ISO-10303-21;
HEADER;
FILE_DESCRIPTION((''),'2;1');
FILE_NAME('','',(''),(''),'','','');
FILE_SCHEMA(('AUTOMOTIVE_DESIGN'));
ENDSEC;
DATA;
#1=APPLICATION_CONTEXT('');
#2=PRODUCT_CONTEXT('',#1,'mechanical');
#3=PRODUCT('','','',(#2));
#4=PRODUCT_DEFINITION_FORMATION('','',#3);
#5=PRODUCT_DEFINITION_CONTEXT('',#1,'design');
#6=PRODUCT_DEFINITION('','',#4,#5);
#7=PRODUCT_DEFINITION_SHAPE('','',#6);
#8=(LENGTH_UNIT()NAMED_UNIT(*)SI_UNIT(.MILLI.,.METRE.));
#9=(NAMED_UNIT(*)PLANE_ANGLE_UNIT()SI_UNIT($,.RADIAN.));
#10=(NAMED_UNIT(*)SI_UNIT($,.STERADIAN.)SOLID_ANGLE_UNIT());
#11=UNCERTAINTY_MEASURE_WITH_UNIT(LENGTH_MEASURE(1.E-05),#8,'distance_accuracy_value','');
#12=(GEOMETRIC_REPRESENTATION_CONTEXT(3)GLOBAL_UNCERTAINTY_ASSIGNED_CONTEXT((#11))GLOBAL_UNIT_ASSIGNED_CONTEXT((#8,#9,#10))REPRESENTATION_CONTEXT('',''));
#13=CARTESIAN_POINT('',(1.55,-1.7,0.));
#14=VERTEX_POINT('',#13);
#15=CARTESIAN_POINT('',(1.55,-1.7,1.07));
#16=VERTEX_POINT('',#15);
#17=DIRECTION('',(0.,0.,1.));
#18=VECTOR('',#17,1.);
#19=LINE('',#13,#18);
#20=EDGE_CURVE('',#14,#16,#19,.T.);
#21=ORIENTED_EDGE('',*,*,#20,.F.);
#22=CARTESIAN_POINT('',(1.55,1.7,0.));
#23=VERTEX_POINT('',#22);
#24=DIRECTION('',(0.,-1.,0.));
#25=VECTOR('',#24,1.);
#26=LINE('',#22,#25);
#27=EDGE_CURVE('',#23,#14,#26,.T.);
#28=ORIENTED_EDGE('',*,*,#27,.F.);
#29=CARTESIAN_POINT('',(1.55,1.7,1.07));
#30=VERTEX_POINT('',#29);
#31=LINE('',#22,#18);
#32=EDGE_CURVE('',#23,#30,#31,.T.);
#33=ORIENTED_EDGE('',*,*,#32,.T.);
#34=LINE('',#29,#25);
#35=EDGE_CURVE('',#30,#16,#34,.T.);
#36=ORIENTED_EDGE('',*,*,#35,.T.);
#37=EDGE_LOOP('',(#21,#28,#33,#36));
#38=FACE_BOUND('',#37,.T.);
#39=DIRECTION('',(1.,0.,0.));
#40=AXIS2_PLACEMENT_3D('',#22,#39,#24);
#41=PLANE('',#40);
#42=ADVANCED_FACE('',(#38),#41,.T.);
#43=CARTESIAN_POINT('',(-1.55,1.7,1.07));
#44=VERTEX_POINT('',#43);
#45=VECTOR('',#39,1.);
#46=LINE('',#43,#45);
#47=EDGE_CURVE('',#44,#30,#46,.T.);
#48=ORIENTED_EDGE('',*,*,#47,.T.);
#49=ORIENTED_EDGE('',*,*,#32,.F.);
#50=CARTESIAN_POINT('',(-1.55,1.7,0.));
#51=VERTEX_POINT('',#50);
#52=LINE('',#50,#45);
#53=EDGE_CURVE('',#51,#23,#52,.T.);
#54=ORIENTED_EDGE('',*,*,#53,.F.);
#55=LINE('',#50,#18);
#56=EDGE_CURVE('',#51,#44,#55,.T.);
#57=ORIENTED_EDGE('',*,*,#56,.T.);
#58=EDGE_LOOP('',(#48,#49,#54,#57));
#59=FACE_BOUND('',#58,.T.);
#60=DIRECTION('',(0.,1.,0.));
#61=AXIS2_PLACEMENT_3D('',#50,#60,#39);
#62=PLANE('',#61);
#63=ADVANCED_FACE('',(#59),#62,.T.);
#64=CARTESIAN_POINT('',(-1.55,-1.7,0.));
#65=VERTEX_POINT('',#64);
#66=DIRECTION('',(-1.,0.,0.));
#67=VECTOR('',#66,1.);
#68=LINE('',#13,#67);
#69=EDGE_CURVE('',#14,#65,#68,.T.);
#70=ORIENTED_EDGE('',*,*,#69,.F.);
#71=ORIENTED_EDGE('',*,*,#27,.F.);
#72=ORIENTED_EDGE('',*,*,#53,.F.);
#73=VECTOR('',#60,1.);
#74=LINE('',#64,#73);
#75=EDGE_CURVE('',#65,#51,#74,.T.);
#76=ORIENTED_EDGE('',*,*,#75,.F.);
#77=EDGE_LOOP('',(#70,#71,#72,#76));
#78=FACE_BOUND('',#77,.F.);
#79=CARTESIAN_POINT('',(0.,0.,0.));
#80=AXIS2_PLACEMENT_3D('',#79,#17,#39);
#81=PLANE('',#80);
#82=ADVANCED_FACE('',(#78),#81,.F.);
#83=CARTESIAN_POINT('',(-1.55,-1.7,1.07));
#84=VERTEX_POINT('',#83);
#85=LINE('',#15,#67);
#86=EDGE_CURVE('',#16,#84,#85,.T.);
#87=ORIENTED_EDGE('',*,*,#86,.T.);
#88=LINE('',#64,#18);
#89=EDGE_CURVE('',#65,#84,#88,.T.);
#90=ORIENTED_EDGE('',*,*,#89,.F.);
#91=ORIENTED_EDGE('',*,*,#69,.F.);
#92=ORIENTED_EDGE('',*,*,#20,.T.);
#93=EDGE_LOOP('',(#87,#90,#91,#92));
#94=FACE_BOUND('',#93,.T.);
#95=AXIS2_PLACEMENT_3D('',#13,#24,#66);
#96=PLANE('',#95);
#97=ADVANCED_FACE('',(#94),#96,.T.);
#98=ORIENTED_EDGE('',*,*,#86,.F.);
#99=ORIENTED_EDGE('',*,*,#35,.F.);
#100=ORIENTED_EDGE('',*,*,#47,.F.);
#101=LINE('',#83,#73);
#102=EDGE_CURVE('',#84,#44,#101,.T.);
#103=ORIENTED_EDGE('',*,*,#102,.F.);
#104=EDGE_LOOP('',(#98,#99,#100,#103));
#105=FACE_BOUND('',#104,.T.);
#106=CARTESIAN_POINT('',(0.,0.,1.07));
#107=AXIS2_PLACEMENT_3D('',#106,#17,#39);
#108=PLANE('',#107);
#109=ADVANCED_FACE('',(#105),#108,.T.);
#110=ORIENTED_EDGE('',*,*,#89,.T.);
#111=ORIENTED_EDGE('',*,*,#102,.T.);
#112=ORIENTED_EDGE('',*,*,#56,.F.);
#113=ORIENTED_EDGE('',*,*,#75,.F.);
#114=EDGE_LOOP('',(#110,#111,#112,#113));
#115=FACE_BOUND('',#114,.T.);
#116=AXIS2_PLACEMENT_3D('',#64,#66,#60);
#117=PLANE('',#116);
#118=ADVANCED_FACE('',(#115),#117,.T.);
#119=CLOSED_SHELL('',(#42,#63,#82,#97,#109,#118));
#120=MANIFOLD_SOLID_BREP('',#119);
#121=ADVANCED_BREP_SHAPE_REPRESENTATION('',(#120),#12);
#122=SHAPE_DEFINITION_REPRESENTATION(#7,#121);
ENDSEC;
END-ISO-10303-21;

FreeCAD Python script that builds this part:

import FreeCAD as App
import Part
import Sketcher

V = App.Vector
Q = App.Units.Quantity

doc = App.newDocument("Part")
params = doc.addObject("Spreadsheet::Sheet", "Params")
for row, (alias, value) in enumerate([
    ("sketch1_width", "3.1 mm"),
    ("sketch1_height", "3.4 mm"),
    ("pad1_length", "1.07 mm"),
], start=1):
    params.set(f"A{row}", alias)
    params.set(f"B{row}", "=" + value)
    params.setAlias(f"B{row}", alias)

body = doc.addObject("PartDesign::Body", "Body")

sketch1 = body.newObject("Sketcher::SketchObject", "Sketch")
sketch1.AttachmentSupport = (doc.getObject("XY_Plane"), [""])
sketch1.MapMode = "FlatFace"
sketch1.addGeometry(Part.LineSegment(V(1.6, 1.7, 0), V(-1.6, 1.7, 0)), False)
sketch1.addGeometry(Part.LineSegment(V(-1.6, 1.7, 0), V(-1.6, -1.7, 0)), False)
sketch1.addGeometry(Part.LineSegment(V(-1.6, -1.7, 0), V(1.6, -1.7, 0)), False)
sketch1.addGeometry(Part.LineSegment(V(1.6, -1.7, 0), V(1.6, 1.7, 0)), False)
sketch1.addConstraint(Sketcher.Constraint("Coincident", 0, 2, 1, 1))
sketch1.addConstraint(Sketcher.Constraint("Coincident", 1, 2, 2, 1))
sketch1.addConstraint(Sketcher.Constraint("Coincident", 2, 2, 3, 1))
sketch1.addConstraint(Sketcher.Constraint("Coincident", 3, 2, 0, 1))
sketch1.addConstraint(Sketcher.Constraint("Horizontal", 0))
sketch1.addConstraint(Sketcher.Constraint("Vertical", 1))
sketch1.addConstraint(Sketcher.Constraint("Horizontal", 2))
sketch1.addConstraint(Sketcher.Constraint("Vertical", 3))
sketch1.addConstraint(Sketcher.Constraint("Symmetric", 0, 2, 2, 2, -1, 1))
sketch1.addConstraint(Sketcher.Constraint("DistanceX", 0, 2, 0, 1, Q("3.1 mm")))
sketch1.addConstraint(Sketcher.Constraint("DistanceY", 1, 2, 1, 1, Q("3.4 mm")))
sketch1.setExpression("Constraints[9]", "Params.sketch1_width")
sketch1.setExpression("Constraints[10]", "Params.sketch1_height")
pad1 = body.newObject("PartDesign::Pad", "Pad")
pad1.Profile = sketch1
pad1.setExpression("Length", "Params.pad1_length")

doc.recompute()
